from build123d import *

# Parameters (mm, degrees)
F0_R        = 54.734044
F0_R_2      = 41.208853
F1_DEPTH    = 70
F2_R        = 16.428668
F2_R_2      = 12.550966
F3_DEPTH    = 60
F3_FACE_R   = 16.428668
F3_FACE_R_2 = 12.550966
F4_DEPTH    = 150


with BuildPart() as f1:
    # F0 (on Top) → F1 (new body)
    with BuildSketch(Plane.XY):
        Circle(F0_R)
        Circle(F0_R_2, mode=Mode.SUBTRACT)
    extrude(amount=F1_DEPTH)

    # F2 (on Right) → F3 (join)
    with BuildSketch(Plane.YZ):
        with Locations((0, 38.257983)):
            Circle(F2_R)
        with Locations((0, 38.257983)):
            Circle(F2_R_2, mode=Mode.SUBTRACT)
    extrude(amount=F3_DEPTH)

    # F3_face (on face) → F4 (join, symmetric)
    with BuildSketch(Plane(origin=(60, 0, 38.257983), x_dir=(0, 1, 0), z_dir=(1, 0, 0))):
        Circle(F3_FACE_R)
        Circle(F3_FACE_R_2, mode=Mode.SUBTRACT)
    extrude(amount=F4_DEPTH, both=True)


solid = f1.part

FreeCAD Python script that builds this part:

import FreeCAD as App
import Part
import Sketcher
from FreeCAD import Vector
Q = App.Units.Quantity

doc = App.newDocument("Part")
body = doc.addObject("PartDesign::Body", "Body")

# Sketch on XY plane
sketch1 = doc.addObject("Sketcher::SketchObject", "Sketch")
body.addObject(sketch1)
sketch1.AttachmentSupport = (doc.XY_Plane, [""])
sketch1.MapMode = "FlatFace"
sketch1.addGeometry([
    Part.Circle(Vector(0, 0, 0), Vector(0, 0, 1), 54.734044),
    Part.Circle(Vector(0, 0, 0), Vector(0, 0, 1), 41.208853),
], False)
sketch1.addConstraint([
    Sketcher.Constraint("Coincident", 0, 3, -1, 1),
    Sketcher.Constraint("Coincident", 1, 3, -1, 1),
    Sketcher.Constraint("Diameter", 0, Q("109.468088 mm")),
    Sketcher.Constraint("Diameter", 1, Q("82.417706 mm")),
])
pad1 = doc.addObject("PartDesign::Pad", "Pad")
body.addObject(pad1)
pad1.Profile = sketch1
pad1.Length = 70

# Sketch on YZ plane
sketch2 = doc.addObject("Sketcher::SketchObject", "Sketch001")
body.addObject(sketch2)
sketch2.AttachmentSupport = (doc.YZ_Plane, [""])
sketch2.MapMode = "FlatFace"
sketch2.addGeometry([
    Part.Circle(Vector(0, 38.257983, 0), Vector(0, 0, 1), 16.428668),
    Part.Circle(Vector(0, 38.257983, 0), Vector(0, 0, 1), 12.550966),
], False)
sketch2.addConstraint([
    Sketcher.Constraint("Coincident", 1, 3, 0, 3),
    Sketcher.Constraint("PointOnObject", 0, 3, -2),
    Sketcher.Constraint("Diameter", 0, Q("32.857336 mm")),
    Sketcher.Constraint("Diameter", 1, Q("25.101932 mm")),
    Sketcher.Constraint("DistanceY", -1, 1, 0, 3, Q("38.257983 mm")),
])
pad2 = doc.addObject("PartDesign::Pad", "Pad001")
body.addObject(pad2)
pad2.Profile = sketch2
pad2.Length = 60

# Sketch on YZ plane
sketch3 = doc.addObject("Sketcher::SketchObject", "Sketch002")
body.addObject(sketch3)
sketch3.AttachmentSupport = (doc.YZ_Plane, [""])
sketch3.MapMode = "FlatFace"
sketch3.AttachmentOffset = App.Placement(Vector(0, 0, 60), App.Rotation())
sketch3.addGeometry([
    Part.Circle(Vector(0, 38.257983, 0), Vector(0, 0, 1), 16.428668),
    Part.Circle(Vector(0, 38.257983, 0), Vector(0, 0, 1), 12.550966),
], False)
sketch3.addConstraint([
    Sketcher.Constraint("Coincident", 1, 3, 0, 3),
    Sketcher.Constraint("PointOnObject", 0, 3, -2),
    Sketcher.Constraint("Diameter", 0, Q("32.857336 mm")),
    Sketcher.Constraint("Diameter", 1, Q("25.101932 mm")),
    Sketcher.Constraint("DistanceY", -1, 1, 0, 3, Q("38.257983 mm")),
])
pad3 = doc.addObject("PartDesign::Pad", "Pad002")
body.addObject(pad3)
pad3.Profile = sketch3
pad3.Length = 300
pad3.Midplane = True

doc.recompute()
